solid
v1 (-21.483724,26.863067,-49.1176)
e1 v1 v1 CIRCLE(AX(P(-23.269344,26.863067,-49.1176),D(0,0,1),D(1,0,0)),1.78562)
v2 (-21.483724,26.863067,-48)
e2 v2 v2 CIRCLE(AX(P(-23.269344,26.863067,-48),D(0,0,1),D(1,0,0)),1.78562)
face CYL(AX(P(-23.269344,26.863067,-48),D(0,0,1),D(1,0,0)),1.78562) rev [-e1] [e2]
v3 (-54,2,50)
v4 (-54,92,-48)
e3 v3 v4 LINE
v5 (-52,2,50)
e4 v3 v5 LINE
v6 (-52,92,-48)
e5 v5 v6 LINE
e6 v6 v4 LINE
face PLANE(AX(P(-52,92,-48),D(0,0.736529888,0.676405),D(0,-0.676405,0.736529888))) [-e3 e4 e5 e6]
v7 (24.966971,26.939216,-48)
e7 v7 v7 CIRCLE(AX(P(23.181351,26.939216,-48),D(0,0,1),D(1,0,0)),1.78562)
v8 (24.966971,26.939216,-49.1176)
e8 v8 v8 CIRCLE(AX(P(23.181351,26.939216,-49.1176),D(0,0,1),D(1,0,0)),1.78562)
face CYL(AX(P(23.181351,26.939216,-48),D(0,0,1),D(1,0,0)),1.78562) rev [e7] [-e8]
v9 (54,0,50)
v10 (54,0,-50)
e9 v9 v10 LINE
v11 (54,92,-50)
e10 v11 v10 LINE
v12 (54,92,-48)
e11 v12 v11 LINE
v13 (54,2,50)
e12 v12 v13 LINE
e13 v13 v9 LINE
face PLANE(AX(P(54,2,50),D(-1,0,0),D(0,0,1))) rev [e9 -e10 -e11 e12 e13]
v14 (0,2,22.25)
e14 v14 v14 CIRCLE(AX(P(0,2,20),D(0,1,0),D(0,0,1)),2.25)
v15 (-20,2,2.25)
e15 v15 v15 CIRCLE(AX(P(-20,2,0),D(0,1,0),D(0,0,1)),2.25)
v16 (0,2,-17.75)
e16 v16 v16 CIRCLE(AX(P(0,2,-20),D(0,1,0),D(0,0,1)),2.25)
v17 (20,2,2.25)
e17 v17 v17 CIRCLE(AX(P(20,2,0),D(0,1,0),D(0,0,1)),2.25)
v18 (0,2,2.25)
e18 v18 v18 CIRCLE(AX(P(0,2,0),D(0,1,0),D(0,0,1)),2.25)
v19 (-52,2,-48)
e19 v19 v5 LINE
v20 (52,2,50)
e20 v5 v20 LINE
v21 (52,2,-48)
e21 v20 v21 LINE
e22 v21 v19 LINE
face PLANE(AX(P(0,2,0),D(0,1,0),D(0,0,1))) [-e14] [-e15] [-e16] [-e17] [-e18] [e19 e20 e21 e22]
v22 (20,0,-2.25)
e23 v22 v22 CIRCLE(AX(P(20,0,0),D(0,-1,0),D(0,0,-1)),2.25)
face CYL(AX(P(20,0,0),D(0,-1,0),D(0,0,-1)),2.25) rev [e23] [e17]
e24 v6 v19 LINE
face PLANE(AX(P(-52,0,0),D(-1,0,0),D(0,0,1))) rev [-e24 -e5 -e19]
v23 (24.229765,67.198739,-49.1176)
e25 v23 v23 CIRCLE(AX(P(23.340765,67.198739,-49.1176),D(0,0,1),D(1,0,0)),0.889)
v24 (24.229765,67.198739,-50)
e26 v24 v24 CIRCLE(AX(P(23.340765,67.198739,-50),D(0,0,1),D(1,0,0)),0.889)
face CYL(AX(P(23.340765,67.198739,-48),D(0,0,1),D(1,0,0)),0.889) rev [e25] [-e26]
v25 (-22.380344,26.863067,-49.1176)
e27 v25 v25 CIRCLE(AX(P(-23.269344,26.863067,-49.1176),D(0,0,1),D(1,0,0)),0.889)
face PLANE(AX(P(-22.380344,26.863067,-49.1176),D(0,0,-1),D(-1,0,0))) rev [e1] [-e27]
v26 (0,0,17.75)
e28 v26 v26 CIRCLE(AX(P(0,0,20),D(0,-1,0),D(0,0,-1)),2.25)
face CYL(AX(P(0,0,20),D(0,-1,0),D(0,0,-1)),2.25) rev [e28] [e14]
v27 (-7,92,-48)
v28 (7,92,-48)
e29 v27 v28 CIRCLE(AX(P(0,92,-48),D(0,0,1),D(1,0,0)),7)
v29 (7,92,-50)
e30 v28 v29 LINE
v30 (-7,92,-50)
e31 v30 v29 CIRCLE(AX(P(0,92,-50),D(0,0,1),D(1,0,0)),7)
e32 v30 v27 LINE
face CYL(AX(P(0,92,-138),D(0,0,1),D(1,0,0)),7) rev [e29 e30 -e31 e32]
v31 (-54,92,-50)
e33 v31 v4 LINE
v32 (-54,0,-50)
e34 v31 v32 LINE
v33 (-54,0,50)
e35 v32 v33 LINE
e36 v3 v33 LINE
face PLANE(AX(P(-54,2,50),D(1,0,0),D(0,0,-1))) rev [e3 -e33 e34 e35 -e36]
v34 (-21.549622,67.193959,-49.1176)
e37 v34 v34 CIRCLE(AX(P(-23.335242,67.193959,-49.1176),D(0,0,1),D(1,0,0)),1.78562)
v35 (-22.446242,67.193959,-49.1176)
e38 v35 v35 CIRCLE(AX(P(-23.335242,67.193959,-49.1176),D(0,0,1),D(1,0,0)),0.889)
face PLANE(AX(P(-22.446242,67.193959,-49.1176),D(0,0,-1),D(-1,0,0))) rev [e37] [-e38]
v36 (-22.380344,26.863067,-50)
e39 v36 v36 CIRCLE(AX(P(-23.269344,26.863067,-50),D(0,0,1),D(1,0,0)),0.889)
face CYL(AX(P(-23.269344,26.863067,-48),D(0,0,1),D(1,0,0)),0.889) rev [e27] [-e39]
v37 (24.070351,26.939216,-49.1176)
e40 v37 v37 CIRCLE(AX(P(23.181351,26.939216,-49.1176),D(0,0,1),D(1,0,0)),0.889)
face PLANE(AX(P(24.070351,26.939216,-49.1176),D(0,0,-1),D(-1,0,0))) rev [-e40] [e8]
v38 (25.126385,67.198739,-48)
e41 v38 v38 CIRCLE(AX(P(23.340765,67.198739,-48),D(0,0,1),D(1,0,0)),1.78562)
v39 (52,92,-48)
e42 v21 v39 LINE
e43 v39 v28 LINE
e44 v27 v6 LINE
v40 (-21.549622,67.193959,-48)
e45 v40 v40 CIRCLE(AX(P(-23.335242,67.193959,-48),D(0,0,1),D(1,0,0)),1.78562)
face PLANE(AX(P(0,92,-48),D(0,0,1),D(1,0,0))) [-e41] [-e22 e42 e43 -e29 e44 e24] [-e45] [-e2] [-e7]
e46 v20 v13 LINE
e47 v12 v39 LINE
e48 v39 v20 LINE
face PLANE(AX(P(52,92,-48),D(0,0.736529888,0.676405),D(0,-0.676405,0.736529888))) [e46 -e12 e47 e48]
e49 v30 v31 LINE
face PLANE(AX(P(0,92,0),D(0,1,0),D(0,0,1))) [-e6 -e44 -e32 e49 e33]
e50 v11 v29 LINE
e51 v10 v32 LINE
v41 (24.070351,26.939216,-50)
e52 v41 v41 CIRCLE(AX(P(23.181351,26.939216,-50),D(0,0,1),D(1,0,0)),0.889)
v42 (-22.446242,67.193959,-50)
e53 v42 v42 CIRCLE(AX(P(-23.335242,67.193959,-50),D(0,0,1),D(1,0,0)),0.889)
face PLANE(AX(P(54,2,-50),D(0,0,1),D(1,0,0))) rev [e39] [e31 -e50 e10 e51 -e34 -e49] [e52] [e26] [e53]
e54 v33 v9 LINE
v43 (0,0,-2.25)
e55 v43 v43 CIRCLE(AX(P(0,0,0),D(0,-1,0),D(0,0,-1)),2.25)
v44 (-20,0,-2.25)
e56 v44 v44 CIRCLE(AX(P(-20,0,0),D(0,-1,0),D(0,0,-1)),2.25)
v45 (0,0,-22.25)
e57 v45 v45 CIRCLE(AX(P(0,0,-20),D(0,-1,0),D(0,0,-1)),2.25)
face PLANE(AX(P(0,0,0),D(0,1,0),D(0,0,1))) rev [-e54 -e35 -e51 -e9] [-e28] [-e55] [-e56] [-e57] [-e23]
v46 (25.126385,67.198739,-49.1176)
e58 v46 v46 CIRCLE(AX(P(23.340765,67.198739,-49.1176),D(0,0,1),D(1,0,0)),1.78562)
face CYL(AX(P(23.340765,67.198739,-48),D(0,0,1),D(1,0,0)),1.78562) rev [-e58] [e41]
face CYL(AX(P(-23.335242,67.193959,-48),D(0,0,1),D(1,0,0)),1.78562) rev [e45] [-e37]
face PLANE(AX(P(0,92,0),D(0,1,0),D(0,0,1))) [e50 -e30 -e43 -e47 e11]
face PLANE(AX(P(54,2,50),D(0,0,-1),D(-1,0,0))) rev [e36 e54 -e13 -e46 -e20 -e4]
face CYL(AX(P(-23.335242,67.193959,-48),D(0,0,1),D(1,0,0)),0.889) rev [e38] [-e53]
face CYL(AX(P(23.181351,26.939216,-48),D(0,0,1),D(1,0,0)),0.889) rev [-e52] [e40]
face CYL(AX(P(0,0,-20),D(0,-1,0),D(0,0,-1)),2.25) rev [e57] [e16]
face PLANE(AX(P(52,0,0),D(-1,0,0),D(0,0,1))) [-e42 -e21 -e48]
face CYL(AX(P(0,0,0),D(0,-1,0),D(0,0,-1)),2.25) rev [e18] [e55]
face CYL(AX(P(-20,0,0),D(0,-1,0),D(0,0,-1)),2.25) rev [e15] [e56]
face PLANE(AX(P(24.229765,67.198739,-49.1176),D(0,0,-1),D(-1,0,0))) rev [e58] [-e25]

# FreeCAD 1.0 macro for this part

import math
import FreeCAD as App
import Part
import Sketcher
Q = App.Units.Quantity


def add_polygon(sketch, points):
    """Adds a closed chain of lines whose ends are joined by coincident constraints."""
    first, n = sketch.GeometryCount, len(points)
    for a, b in zip(points, points[1:] + points[:1]):
        sketch.addGeometry(Part.LineSegment(App.Vector(*a, 0), App.Vector(*b, 0)), False)
    for i in range(n):
        sketch.addConstraint(Sketcher.Constraint("Coincident", first + i, 2, first + (i + 1) % n, 1))

doc = App.newDocument("Part")
body = doc.addObject("PartDesign::Body", "Body")

# Sketch on XZ plane
sketch1 = doc.addObject("Sketcher::SketchObject", "Sketch")
body.addObject(sketch1)
sketch1.AttachmentSupport = (doc.XZ_Plane, [""])
sketch1.MapMode = "FlatFace"
add_polygon(sketch1, [(-54, -50), (-54, 50), (54, 50), (54, -50)])  # lines 0-3
sketch1.addConstraint(Sketcher.Constraint("Vertical", 0))
sketch1.addConstraint(Sketcher.Constraint("Horizontal", 1))
sketch1.addConstraint(Sketcher.Constraint("Vertical", 2))
sketch1.addConstraint(Sketcher.Constraint("Horizontal", 3))
sketch1.addConstraint(Sketcher.Constraint("Symmetric", 0, 2, 2, 2, -1, 1))
sketch1.addConstraint(Sketcher.Constraint("DistanceX", 1, 1, 1, 2, Q("108 mm")))
sketch1.addConstraint(Sketcher.Constraint("DistanceY", 0, 1, 0, 2, Q("100 mm")))
pad1 = doc.addObject("PartDesign::Pad", "Pad")
body.addObject(pad1)
pad1.Profile = sketch1
pad1.Length = 2
pad1.Reversed = True

# Sketch on XZ plane
sketch2 = doc.addObject("Sketcher::SketchObject", "Sketch001")
body.addObject(sketch2)
sketch2.AttachmentSupport = (doc.XZ_Plane, [""])
sketch2.MapMode = "FlatFace"
sketch2.AttachmentOffset = App.Placement(App.Vector(0, 0, -2), App.Rotation())
add_polygon(sketch2, [(-54, -50), (-54, -48), (54, -48), (54, -50)])  # lines 0-3
sketch2.addConstraint(Sketcher.Constraint("Vertical", 0))
sketch2.addConstraint(Sketcher.Constraint("Horizontal", 1))
sketch2.addConstraint(Sketcher.Constraint("Vertical", 2))
sketch2.addConstraint(Sketcher.Constraint("Horizontal", 3))
sketch2.addConstraint(Sketcher.Constraint("DistanceX", 1, 1, 1, 2, Q("108 mm")))
sketch2.addConstraint(Sketcher.Constraint("DistanceY", 0, 1, 0, 2, Q("2 mm")))
sketch2.addConstraint(Sketcher.Constraint("DistanceX", 0, 2, -1, 1, Q("54 mm")))
sketch2.addConstraint(Sketcher.Constraint("DistanceY", 0, 2, -1, 1, Q("48 mm")))
pad2 = doc.addObject("PartDesign::Pad", "Pad001")
body.addObject(pad2)
pad2.Profile = sketch2
pad2.Length = 90
pad2.Reversed = True

# Sketch on XY plane
sketch3 = doc.addObject("Sketcher::SketchObject", "Sketch002")
body.addObject(sketch3)
sketch3.AttachmentSupport = (doc.XY_Plane, [""])
sketch3.MapMode = "FlatFace"
sketch3.AttachmentOffset = App.Placement(App.Vector(0, 0, -48), App.Rotation())
sketch3.addGeometry(Part.LineSegment(App.Vector(7, 92, 0), App.Vector(-7, 92, 0)), False)
sketch3.addGeometry(Part.ArcOfCircle(Part.Circle(App.Vector(0, 92, 0), App.Vector(0, 0, 1), 7), math.radians(180), math.radians(360)), False)
sketch3.addConstraint(Sketcher.Constraint("Coincident", 0, 1, 1, 2))
sketch3.addConstraint(Sketcher.Constraint("Coincident", 1, 1, 0, 2))
sketch3.addConstraint(Sketcher.Constraint("Horizontal", 0))
sketch3.addConstraint(Sketcher.Constraint("PointOnObject", 1, 3, -2))
sketch3.addConstraint(Sketcher.Constraint("Horizontal", 1, 3, 0, 1))
sketch3.addConstraint(Sketcher.Constraint("Radius", 1, Q("7 mm")))
sketch3.addConstraint(Sketcher.Constraint("DistanceY", -1, 1, 1, 3, Q("92 mm")))
pocket1 = doc.addObject("PartDesign::Pocket", "Pocket")
body.addObject(pocket1)
pocket1.Profile = sketch3
pocket1.Length = 90

# Sketch on XZ plane
sketch4 = doc.addObject("Sketcher::SketchObject", "Sketch003")
body.addObject(sketch4)
sketch4.AttachmentSupport = (doc.XZ_Plane, [""])
sketch4.MapMode = "FlatFace"
sketch4.addGeometry(Part.Circle(App.Vector(0, -20, 0), App.Vector(0, 0, 1), 2.2), False)
sketch4.addGeometry(Part.Circle(App.Vector(20, 0, 0), App.Vector(0, 0, 1), 2.2), False)
sketch4.addGeometry(Part.Circle(App.Vector(0, 20, 0), App.Vector(0, 0, 1), 2.2), False)
sketch4.addGeometry(Part.Circle(App.Vector(-20, 0, 0), App.Vector(0, 0, 1), 2.2), False)
sketch4.addGeometry(Part.Circle(App.Vector(0, 0, 0), App.Vector(0, 0, 1), 2.2), False)
sketch4.addConstraint(Sketcher.Constraint("Coincident", 4, 3, -1, 1))
sketch4.addConstraint(Sketcher.Constraint("Equal", 0, 1))
sketch4.addConstraint(Sketcher.Constraint("Equal", 1, 2))
sketch4.addConstraint(Sketcher.Constraint("Equal", 2, 3))
sketch4.addConstraint(Sketcher.Constraint("Equal", 3, 4))
sketch4.addConstraint(Sketcher.Constraint("Symmetric", 0, 3, 2, 3, -1, 1))
sketch4.addConstraint(Sketcher.Constraint("Symmetric", 1, 3, 3, 3, -1, 1))
sketch4.addConstraint(Sketcher.Constraint("PointOnObject", 0, 3, -2))
sketch4.addConstraint(Sketcher.Constraint("PointOnObject", 1, 3, -1))
sketch4.addConstraint(Sketcher.Constraint("Diameter", 0, Q("4.5 mm")))
sketch4.addConstraint(Sketcher.Constraint("DistanceY", 0, 3, -1, 1, Q("20 mm")))
sketch4.addConstraint(Sketcher.Constraint("DistanceX", -1, 1, 1, 3, Q("20 mm")))
doc.recompute()
hole = doc.addObject("PartDesign::Hole", "Hole")
body.addObject(hole)
hole.Profile = sketch4
hole.ThreadType = "None"
hole.Diameter = 4.5
hole.DepthType = "Dimension"
hole.Depth = 10
hole.DrillPoint = "Angled"
hole.DrillPointAngle = 118

# Sketch on YZ plane
sketch5 = doc.addObject("Sketcher::SketchObject", "Sketch004")
body.addObject(sketch5)
sketch5.AttachmentSupport = (doc.YZ_Plane, [""])
sketch5.MapMode = "FlatFace"
sketch5.AttachmentOffset = App.Placement(App.Vector(0, 0, 54), App.Rotation())
add_polygon(sketch5, [(92, -48), (2, 50), (2, -48)])  # lines 0-2
sketch5.addConstraint(Sketcher.Constraint("Vertical", 1))
sketch5.addConstraint(Sketcher.Constraint("Horizontal", 2))
sketch5.addConstraint(Sketcher.Constraint("DistanceX", 2, 1, 2, 2, Q("90 mm")))
sketch5.addConstraint(Sketcher.Constraint("DistanceY", 1, 2, 1, 1, Q("98 mm")))
sketch5.addConstraint(Sketcher.Constraint("DistanceX", -1, 1, 0, 2, Q("2 mm")))
sketch5.addConstraint(Sketcher.Constraint("DistanceY", -1, 1, 0, 2, Q("50 mm")))
pad3 = doc.addObject("PartDesign::Pad", "Pad002")
body.addObject(pad3)
pad3.Profile = sketch5
pad3.Length = 2
pad3.Reversed = True

# Sketch on YZ plane
sketch6 = doc.addObject("Sketcher::SketchObject", "Sketch005")
body.addObject(sketch6)
sketch6.AttachmentSupport = (doc.YZ_Plane, [""])
sketch6.MapMode = "FlatFace"
sketch6.AttachmentOffset = App.Placement(App.Vector(0, 0, -54), App.Rotation())
add_polygon(sketch6, [(2, -48), (2, 50), (92, -48)])  # lines 0-2
sketch6.addConstraint(Sketcher.Constraint("Vertical", 0))
sketch6.addConstraint(Sketcher.Constraint("Horizontal", 2))
sketch6.addConstraint(Sketcher.Constraint("DistanceX", 2, 2, 2, 1, Q("90 mm")))
sketch6.addConstraint(Sketcher.Constraint("DistanceY", 0, 1, 0, 2, Q("98 mm")))
sketch6.addConstraint(Sketcher.Constraint("DistanceX", -1, 1, 0, 2, Q("2 mm")))
sketch6.addConstraint(Sketcher.Constraint("DistanceY", -1, 1, 0, 2, Q("50 mm")))
pad4 = doc.addObject("PartDesign::Pad", "Pad003")
body.addObject(pad4)
pad4.Profile = sketch6
pad4.Length = 2

# Sketch on XY plane
sketch7 = doc.addObject("Sketcher::SketchObject", "Sketch006")
body.addObject(sketch7)
sketch7.AttachmentSupport = (doc.XY_Plane, [""])
sketch7.MapMode = "FlatFace"
sketch7.AttachmentOffset = App.Placement(App.Vector(0, 0, -48), App.Rotation())
sketch7.addGeometry(Part.Circle(App.Vector(-23.3, 67.2, 0), App.Vector(0, 0, 1), 0.9), False)
sketch7.addGeometry(Part.Circle(App.Vector(23.3, 67.2, 0), App.Vector(0, 0, 1), 0.9), False)
sketch7.addGeometry(Part.Circle(App.Vector(-23.3, 26.9, 0), App.Vector(0, 0, 1), 0.9), False)
sketch7.addGeometry(Part.Circle(App.Vector(23.2, 26.9, 0), App.Vector(0, 0, 1), 0.9), False)
sketch7.addConstraint(Sketcher.Constraint("Equal", 0, 1))
sketch7.addConstraint(Sketcher.Constraint("Equal", 1, 2))
sketch7.addConstraint(Sketcher.Constraint("Equal", 2, 3))
sketch7.addConstraint(Sketcher.Constraint("Diameter", 0, Q("1.778 mm")))
sketch7.addConstraint(Sketcher.Constraint("DistanceX", 0, 3, -1, 1, Q("23.335242 mm")))
sketch7.addConstraint(Sketcher.Constraint("DistanceY", -1, 1, 0, 3, Q("67.193959 mm")))
sketch7.addConstraint(Sketcher.Constraint("DistanceY", -1, 1, 1, 3, Q("67.198739 mm")))
sketch7.addConstraint(Sketcher.Constraint("DistanceX", -1, 1, 3, 3, Q("23.181351 mm")))
sketch7.addConstraint(Sketcher.Constraint("DistanceY", 2, 3, 0, 3, Q("40.330892 mm")))
sketch7.addConstraint(Sketcher.Constraint("DistanceX", 2, 3, 1, 3, Q("46.610109 mm")))
sketch7.addConstraint(Sketcher.Constraint("DistanceY", 2, 3, 3, 3, Q("0.076148 mm")))
sketch7.addConstraint(Sketcher.Constraint("DistanceX", -1, 1, 1, 3, Q("23.340765 mm")))
doc.recompute()
hole2 = doc.addObject("PartDesign::Hole", "Hole001")
body.addObject(hole2)
hole2.Profile = sketch7
hole2.ThreadType = "None"
hole2.Diameter = 1.778
hole2.DepthType = "Dimension"
hole2.Depth = 10
hole2.DrillPoint = "Angled"
hole2.DrillPointAngle = 118
hole2.HoleCutType = "Counterbore"
hole2.HoleCutDiameter = 3.57124
hole2.HoleCutDepth = 1.1176

doc.recompute()
